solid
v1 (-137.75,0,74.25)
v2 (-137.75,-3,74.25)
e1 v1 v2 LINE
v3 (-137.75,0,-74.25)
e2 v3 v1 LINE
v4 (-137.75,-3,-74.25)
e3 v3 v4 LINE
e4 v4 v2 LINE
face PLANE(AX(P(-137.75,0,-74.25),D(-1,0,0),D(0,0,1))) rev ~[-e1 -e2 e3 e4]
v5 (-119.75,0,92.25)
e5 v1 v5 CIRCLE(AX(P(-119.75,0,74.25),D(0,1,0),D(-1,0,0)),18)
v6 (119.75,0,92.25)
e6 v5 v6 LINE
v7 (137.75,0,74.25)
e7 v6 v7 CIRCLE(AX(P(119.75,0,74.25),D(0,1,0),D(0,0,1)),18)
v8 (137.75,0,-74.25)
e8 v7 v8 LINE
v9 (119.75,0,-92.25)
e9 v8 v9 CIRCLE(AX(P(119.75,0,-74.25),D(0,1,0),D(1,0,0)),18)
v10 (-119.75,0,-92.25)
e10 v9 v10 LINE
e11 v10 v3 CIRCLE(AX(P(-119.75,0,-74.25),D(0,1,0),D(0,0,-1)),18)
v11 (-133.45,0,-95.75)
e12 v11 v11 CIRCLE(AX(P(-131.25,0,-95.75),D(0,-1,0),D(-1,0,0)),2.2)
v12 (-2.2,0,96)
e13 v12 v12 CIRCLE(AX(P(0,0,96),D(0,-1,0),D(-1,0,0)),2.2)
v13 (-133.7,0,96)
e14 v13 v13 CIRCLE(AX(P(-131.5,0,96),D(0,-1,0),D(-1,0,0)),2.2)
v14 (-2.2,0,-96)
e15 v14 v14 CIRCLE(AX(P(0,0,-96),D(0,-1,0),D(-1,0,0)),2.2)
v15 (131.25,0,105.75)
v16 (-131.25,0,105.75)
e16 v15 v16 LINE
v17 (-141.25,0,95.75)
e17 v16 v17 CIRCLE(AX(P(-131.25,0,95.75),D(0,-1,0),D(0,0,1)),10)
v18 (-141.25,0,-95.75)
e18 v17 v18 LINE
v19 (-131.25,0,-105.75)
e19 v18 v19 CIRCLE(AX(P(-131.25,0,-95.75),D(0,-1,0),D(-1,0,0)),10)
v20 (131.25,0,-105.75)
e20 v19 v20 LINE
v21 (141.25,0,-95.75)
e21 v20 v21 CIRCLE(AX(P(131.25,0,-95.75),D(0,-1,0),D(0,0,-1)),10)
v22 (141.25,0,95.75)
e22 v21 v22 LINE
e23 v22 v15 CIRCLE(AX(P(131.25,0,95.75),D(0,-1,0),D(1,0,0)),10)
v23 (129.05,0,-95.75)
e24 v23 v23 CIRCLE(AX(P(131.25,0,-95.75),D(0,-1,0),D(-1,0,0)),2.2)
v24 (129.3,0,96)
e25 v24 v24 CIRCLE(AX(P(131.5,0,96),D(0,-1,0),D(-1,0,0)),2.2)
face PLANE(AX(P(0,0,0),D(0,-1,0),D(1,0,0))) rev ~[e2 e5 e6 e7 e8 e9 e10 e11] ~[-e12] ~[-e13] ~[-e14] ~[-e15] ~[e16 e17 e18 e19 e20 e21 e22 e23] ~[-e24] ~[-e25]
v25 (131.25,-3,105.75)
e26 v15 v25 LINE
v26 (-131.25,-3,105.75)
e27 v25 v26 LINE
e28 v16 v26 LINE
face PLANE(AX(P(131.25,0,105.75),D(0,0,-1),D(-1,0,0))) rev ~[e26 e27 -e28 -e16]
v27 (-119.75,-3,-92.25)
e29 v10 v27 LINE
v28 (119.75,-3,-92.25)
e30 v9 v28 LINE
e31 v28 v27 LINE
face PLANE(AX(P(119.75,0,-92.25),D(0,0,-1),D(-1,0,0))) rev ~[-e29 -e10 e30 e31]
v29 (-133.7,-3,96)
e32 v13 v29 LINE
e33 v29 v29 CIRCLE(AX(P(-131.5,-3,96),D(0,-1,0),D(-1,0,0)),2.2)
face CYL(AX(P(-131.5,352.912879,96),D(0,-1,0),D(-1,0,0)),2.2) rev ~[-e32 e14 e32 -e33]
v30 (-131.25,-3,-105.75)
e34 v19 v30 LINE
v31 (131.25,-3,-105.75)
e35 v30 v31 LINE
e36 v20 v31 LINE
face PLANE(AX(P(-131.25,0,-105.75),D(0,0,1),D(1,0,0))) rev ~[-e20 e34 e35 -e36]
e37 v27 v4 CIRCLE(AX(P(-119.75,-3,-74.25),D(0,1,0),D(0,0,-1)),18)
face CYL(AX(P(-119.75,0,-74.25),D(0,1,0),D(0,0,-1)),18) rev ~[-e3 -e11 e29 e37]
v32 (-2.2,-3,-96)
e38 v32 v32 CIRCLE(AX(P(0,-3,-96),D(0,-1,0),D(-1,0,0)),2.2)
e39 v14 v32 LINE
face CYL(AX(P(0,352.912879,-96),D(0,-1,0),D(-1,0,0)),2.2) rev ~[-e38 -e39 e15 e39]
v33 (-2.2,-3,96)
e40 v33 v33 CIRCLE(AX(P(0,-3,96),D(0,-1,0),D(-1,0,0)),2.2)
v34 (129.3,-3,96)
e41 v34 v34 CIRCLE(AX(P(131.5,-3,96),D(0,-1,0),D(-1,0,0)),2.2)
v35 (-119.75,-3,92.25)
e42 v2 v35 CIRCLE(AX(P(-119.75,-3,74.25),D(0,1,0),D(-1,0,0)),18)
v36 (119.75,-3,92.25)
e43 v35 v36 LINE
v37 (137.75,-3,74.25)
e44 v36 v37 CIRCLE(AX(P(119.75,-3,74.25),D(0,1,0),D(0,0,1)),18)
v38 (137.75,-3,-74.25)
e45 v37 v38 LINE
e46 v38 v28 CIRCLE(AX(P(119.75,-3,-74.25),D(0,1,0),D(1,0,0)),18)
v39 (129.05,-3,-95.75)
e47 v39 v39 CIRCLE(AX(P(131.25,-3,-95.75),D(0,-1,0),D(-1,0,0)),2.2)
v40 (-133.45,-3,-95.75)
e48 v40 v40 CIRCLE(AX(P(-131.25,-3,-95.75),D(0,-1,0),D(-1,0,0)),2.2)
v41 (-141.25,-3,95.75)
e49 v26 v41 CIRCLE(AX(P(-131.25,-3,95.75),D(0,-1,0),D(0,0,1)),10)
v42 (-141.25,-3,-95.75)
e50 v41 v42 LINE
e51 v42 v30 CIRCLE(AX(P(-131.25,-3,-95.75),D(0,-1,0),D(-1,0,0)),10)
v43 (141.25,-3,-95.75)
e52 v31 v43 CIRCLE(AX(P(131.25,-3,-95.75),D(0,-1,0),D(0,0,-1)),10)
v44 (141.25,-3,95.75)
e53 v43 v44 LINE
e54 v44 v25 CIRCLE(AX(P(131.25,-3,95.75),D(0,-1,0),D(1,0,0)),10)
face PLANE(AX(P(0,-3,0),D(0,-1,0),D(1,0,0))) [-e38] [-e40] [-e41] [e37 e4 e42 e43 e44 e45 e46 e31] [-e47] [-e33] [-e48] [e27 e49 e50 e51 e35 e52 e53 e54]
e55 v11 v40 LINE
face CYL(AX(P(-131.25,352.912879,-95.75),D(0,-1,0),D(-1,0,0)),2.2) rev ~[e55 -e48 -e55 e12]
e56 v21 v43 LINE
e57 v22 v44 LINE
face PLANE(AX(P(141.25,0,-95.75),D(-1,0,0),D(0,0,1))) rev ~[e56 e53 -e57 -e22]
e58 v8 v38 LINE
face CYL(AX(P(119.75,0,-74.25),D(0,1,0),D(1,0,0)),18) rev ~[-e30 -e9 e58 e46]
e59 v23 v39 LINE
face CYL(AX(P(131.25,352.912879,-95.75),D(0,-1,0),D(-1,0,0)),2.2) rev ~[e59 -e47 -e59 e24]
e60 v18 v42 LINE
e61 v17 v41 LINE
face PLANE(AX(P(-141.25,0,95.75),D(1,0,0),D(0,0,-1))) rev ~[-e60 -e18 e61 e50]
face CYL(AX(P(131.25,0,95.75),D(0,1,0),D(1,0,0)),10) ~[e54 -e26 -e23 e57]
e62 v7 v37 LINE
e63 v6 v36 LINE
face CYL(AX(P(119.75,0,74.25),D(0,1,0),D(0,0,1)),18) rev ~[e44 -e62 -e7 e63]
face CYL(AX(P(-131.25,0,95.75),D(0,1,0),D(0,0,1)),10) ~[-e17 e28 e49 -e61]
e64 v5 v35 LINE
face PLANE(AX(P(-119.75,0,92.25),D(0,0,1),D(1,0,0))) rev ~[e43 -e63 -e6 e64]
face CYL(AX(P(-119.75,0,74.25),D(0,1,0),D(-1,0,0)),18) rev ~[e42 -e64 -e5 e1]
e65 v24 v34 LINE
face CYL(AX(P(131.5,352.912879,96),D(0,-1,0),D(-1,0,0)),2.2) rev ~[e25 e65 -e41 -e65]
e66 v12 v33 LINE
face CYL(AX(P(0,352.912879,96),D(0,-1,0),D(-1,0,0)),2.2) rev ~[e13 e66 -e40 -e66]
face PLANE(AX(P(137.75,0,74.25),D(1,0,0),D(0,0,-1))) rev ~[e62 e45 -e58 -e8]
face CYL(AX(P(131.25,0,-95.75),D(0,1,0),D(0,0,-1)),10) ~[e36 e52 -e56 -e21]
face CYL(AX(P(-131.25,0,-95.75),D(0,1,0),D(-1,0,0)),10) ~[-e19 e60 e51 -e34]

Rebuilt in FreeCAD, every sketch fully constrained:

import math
import FreeCAD as App
import Part
import Sketcher
from FreeCAD import Vector

doc = App.newDocument("Part")
body = doc.addObject("PartDesign::Body", "Body")

sketch1 = body.newObject("Sketcher::SketchObject", "Sketch")
sketch1.AttachmentSupport = (doc.getObject("XZ_Plane"), [""])
sketch1.MapMode = "FlatFace"
sketch1.addGeometry([
    Part.LineSegment(Vector(-131, -106, 0), Vector(131, -106, 0)),
    Part.ArcOfCircle(Part.Circle(Vector(131, -96, 0), Vector(0, 0, 1), 10), math.radians(-90), math.radians(0)),
    Part.LineSegment(Vector(141, -96, 0), Vector(141, 96, 0)),
    Part.ArcOfCircle(Part.Circle(Vector(131, 96, 0), Vector(0, 0, 1), 10), math.radians(0), math.radians(90)),
    Part.LineSegment(Vector(131, 106, 0), Vector(-131, 106, 0)),
    Part.ArcOfCircle(Part.Circle(Vector(-131, 96, 0), Vector(0, 0, 1), 10), math.radians(90), math.radians(180)),
    Part.LineSegment(Vector(-141, 96, 0), Vector(-141, -96, 0)),
    Part.ArcOfCircle(Part.Circle(Vector(-131, -96, 0), Vector(0, 0, 1), 10), math.radians(180), math.radians(270)),
    Part.LineSegment(Vector(138, 74, 0), Vector(138, -74, 0)),
    Part.ArcOfCircle(Part.Circle(Vector(120, -74, 0), Vector(0, 0, 1), 18), math.radians(-90), math.radians(0)),
    Part.LineSegment(Vector(120, -92, 0), Vector(-120, -92, 0)),
    Part.ArcOfCircle(Part.Circle(Vector(-120, -74, 0), Vector(0, 0, 1), 18), math.radians(180), math.radians(270)),
    Part.LineSegment(Vector(-138, -74, 0), Vector(-138, 74, 0)),
    Part.ArcOfCircle(Part.Circle(Vector(-120, 74, 0), Vector(0, 0, 1), 18), math.radians(90), math.radians(180)),
    Part.LineSegment(Vector(-120, 92, 0), Vector(120, 92, 0)),
    Part.ArcOfCircle(Part.Circle(Vector(120, 74, 0), Vector(0, 0, 1), 18), math.radians(0), math.radians(90)),
], False)
sketch1.addConstraint([
    Sketcher.Constraint("Tangent", 0, 2, 1, 1),
    Sketcher.Constraint("Tangent", 1, 2, 2, 1),
    Sketcher.Constraint("Tangent", 2, 2, 3, 1),
    Sketcher.Constraint("Tangent", 3, 2, 4, 1),
    Sketcher.Constraint("Tangent", 4, 2, 5, 1),
    Sketcher.Constraint("Tangent", 5, 2, 6, 1),
    Sketcher.Constraint("Tangent", 6, 2, 7, 1),
    Sketcher.Constraint("Tangent", 7, 2, 0, 1),
    Sketcher.Constraint("Tangent", 8, 2, 9, 2),
    Sketcher.Constraint("Tangent", 9, 1, 10, 1),
    Sketcher.Constraint("Tangent", 10, 2, 11, 2),
    Sketcher.Constraint("Tangent", 11, 1, 12, 1),
    Sketcher.Constraint("Tangent", 12, 2, 13, 2),
    Sketcher.Constraint("Tangent", 13, 1, 14, 1),
    Sketcher.Constraint("Tangent", 14, 2, 15, 2),
    Sketcher.Constraint("Tangent", 15, 1, 8, 1),
    Sketcher.Constraint("Horizontal", 0),
    Sketcher.Constraint("Vertical", 2),
    Sketcher.Constraint("Horizontal", 4),
    Sketcher.Constraint("Vertical", 6),
    Sketcher.Constraint("Vertical", 8),
    Sketcher.Constraint("Horizontal", 10),
    Sketcher.Constraint("Vertical", 12),
    Sketcher.Constraint("Horizontal", 14),
    Sketcher.Constraint("Equal", 1, 3),
    Sketcher.Constraint("Equal", 3, 5),
    Sketcher.Constraint("Equal", 5, 7),
    Sketcher.Constraint("Equal", 9, 11),
    Sketcher.Constraint("Equal", 11, 13),
    Sketcher.Constraint("Equal", 13, 15),
    Sketcher.Constraint("Symmetric", 1, 3, 5, 3, -1, 1),
    Sketcher.Constraint("Symmetric", 9, 3, 13, 3, -1, 1),
    Sketcher.Constraint("Radius", 1, 10.0),
    Sketcher.Constraint("Radius", 9, 18.0),
    Sketcher.Constraint("DistanceX", 0, 1, 0, 2, 262.5),
    Sketcher.Constraint("DistanceX", 10, 2, 10, 1, 239.5),
    Sketcher.Constraint("DistanceY", 2, 1, 2, 2, 191.5),
    Sketcher.Constraint("DistanceY", 8, 2, 8, 1, 148.5),
])
pad1 = body.newObject("PartDesign::Pad", "Pad")
pad1.Profile = sketch1
pad1.Length = 3

sketch2 = body.newObject("Sketcher::SketchObject", "Sketch001")
sketch2.AttachmentSupport = (doc.getObject("XZ_Plane"), [""])
sketch2.MapMode = "FlatFace"
sketch2.addGeometry([
    Part.Circle(Vector(-131.5, 96, 0), Vector(0, 0, 1), 2.2),
    Part.Circle(Vector(0, 96, 0), Vector(0, 0, 1), 2.2),
    Part.Circle(Vector(131.5, 96, 0), Vector(0, 0, 1), 2.2),
    Part.Circle(Vector(131.2, -95.8, 0), Vector(0, 0, 1), 2.2),
    Part.Circle(Vector(0, -96, 0), Vector(0, 0, 1), 2.2),
    Part.Circle(Vector(-131.2, -95.8, 0), Vector(0, 0, 1), 2.2),
], False)
sketch2.addConstraint([
    Sketcher.Constraint("Equal", 0, 1),
    Sketcher.Constraint("Equal", 1, 2),
    Sketcher.Constraint("Equal", 2, 3),
    Sketcher.Constraint("Equal", 3, 4),
    Sketcher.Constraint("Equal", 4, 5),
    Sketcher.Constraint("Symmetric", 1, 3, 4, 3, -1, 1),
    Sketcher.Constraint("Symmetric", 0, 3, 2, 3, -2),
    Sketcher.Constraint("Symmetric", 3, 3, 5, 3, -2),
    Sketcher.Constraint("PointOnObject", 1, 3, -2),
    Sketcher.Constraint("Horizontal", 0, 3, 1, 3),
    Sketcher.Constraint("Diameter", 0, 4.4),
    Sketcher.Constraint("DistanceY", -1, 1, 0, 3, 96.0),
    Sketcher.Constraint("DistanceX", 0, 3, 2, 3, 263.0),
    Sketcher.Constraint("DistanceX", 5, 3, 3, 3, 262.5),
    Sketcher.Constraint("DistanceY", 3, 3, -1, 1, 95.75),
])
doc.recompute()
hole = body.newObject("PartDesign::Hole", "Hole")
hole.Profile = sketch2
hole.ThreadType = "None"
hole.Diameter = 4.4
hole.DepthType = "ThroughAll"
hole.Reversed = True

doc.recompute()
